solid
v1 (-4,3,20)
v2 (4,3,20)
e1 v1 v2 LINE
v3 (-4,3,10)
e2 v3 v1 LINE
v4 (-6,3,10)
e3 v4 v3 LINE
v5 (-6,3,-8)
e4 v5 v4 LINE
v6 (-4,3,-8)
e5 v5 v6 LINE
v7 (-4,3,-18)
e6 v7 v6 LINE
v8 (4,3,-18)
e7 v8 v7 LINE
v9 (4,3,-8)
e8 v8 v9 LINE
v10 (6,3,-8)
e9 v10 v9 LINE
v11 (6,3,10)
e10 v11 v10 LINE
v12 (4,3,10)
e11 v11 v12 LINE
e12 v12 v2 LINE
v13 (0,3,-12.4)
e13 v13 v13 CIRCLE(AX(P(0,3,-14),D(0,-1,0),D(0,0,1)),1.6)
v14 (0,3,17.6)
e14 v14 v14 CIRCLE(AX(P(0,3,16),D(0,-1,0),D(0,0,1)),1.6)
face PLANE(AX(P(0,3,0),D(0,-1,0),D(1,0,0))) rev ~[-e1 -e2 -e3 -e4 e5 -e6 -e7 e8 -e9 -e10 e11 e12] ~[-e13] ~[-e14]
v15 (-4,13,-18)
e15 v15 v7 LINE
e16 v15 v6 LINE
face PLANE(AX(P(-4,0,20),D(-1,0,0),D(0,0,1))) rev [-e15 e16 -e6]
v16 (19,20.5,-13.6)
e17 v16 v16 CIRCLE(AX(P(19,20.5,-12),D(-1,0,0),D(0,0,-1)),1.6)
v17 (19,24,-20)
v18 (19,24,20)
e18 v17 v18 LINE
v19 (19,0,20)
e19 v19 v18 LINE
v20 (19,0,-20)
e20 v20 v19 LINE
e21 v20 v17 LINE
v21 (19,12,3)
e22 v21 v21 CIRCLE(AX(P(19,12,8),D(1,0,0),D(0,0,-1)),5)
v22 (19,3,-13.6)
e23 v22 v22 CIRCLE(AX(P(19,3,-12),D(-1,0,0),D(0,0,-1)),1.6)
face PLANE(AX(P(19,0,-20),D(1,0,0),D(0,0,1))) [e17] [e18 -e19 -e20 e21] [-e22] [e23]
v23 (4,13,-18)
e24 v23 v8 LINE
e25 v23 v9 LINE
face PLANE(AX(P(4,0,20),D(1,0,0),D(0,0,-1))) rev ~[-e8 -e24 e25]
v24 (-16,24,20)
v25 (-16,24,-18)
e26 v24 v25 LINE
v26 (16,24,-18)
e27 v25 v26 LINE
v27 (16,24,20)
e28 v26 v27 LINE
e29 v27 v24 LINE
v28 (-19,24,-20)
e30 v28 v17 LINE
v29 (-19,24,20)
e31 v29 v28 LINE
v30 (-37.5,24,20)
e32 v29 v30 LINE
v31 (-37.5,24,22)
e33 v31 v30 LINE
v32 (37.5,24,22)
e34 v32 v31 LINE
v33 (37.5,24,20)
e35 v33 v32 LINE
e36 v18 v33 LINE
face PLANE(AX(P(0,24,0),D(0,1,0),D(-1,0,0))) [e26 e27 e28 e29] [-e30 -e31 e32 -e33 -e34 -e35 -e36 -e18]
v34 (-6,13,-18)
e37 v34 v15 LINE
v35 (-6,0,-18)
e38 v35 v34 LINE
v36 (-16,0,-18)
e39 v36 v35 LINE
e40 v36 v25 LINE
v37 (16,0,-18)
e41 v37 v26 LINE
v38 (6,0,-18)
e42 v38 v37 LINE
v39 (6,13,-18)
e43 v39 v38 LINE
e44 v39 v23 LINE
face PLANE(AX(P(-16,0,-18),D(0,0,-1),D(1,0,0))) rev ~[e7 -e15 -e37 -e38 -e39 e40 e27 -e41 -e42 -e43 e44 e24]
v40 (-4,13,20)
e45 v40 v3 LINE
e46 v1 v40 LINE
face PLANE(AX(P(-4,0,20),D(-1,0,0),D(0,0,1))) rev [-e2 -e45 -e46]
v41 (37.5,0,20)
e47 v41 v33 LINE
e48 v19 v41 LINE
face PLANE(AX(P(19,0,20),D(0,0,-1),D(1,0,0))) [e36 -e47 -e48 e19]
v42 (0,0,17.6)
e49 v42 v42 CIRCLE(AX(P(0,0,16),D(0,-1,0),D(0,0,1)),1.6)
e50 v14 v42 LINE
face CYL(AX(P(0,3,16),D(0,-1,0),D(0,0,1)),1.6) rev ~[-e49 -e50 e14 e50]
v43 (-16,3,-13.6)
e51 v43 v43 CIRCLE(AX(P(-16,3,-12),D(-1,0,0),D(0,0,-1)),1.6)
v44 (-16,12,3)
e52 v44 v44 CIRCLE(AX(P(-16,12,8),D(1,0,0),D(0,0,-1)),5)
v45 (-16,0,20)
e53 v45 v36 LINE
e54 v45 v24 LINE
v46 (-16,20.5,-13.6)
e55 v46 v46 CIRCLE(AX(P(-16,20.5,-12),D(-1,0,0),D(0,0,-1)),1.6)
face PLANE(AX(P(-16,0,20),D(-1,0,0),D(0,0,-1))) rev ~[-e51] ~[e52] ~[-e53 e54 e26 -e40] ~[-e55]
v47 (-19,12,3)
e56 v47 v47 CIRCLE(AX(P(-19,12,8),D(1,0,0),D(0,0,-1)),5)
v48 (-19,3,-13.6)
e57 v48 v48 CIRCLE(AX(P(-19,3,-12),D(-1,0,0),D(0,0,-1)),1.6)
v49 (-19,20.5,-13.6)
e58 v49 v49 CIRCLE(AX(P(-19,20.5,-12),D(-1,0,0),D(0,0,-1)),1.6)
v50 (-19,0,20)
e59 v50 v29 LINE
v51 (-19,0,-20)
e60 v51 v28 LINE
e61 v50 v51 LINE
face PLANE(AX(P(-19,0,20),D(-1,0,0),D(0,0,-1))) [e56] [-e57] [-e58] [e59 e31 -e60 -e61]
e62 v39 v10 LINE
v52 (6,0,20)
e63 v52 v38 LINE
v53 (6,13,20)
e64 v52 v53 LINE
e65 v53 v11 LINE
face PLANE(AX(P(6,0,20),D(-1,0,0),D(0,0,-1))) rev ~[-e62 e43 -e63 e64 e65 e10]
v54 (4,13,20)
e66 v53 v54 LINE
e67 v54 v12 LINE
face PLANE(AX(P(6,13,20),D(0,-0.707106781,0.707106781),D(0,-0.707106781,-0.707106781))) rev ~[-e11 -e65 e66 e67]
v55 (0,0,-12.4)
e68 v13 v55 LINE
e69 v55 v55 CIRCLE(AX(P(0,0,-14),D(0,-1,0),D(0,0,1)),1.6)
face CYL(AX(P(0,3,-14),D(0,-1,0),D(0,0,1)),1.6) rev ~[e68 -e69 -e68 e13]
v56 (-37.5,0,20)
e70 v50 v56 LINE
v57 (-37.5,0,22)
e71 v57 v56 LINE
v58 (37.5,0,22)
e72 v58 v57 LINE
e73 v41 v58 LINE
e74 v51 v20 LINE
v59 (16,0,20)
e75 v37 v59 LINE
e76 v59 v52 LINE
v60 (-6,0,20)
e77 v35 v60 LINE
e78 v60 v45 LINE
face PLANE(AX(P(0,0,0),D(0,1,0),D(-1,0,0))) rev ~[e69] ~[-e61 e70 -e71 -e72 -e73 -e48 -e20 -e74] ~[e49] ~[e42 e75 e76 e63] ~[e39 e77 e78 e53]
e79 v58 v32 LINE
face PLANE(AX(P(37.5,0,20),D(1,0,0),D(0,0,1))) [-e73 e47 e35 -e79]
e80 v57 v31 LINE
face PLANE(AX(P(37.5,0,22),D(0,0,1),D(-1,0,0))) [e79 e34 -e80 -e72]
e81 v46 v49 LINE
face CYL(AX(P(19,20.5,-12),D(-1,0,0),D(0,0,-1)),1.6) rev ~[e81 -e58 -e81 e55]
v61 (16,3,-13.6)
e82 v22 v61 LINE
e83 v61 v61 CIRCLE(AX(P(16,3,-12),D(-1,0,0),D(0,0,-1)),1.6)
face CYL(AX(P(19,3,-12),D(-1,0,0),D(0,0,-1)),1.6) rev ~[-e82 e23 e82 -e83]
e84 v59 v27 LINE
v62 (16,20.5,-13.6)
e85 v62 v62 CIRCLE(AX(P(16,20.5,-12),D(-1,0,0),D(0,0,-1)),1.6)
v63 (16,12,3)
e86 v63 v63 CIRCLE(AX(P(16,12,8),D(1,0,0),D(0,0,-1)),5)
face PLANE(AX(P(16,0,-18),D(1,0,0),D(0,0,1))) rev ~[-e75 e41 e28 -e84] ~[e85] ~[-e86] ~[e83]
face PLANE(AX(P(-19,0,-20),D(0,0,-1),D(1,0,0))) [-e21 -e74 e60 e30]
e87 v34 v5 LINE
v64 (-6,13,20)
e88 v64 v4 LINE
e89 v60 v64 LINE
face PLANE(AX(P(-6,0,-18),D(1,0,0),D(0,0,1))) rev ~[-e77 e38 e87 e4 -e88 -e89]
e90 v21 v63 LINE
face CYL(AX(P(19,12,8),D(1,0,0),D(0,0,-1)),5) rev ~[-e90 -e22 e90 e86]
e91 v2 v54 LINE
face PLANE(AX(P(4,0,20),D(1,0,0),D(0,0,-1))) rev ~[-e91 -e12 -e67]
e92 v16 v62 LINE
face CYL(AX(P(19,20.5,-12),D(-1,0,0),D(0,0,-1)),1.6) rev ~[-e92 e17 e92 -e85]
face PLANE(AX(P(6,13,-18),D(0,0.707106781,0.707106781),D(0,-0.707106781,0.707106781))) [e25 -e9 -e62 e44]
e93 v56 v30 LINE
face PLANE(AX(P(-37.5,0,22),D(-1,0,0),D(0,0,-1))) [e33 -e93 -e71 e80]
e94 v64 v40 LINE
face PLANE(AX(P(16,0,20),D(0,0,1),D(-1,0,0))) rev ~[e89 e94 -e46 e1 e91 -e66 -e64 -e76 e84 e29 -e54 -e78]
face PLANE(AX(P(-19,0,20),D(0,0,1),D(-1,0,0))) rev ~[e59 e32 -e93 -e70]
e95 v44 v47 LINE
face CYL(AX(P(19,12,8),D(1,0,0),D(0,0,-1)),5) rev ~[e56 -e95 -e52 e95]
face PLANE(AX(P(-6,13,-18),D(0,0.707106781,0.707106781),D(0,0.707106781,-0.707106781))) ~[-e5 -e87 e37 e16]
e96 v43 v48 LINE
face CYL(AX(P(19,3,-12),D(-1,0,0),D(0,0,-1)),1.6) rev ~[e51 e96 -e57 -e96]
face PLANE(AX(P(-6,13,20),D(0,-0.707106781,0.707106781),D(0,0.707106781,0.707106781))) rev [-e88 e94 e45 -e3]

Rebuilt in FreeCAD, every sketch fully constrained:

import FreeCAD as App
import Part
import Sketcher
from FreeCAD import Vector

doc = App.newDocument("Part")
body = doc.addObject("PartDesign::Body", "Body")

sketch1 = body.newObject("Sketcher::SketchObject", "Sketch")
sketch1.AttachmentSupport = (doc.getObject("XZ_Plane"), [""])
sketch1.MapMode = "FlatFace"
sketch1.addGeometry(Part.LineSegment(Vector(19, -20, 0), Vector(-19, -20, 0)), False)
sketch1.addGeometry(Part.LineSegment(Vector(-19, -20, 0), Vector(-19, 20, 0)), False)
sketch1.addGeometry(Part.LineSegment(Vector(-19, 20, 0), Vector(-37.5, 20, 0)), False)
sketch1.addGeometry(Part.LineSegment(Vector(-37.5, 20, 0), Vector(-37.5, 22, 0)), False)
sketch1.addGeometry(Part.LineSegment(Vector(-37.5, 22, 0), Vector(37.5, 22, 0)), False)
sketch1.addGeometry(Part.LineSegment(Vector(37.5, 22, 0), Vector(37.5, 20, 0)), False)
sketch1.addGeometry(Part.LineSegment(Vector(37.5, 20, 0), Vector(19, 20, 0)), False)
sketch1.addGeometry(Part.LineSegment(Vector(19, 20, 0), Vector(19, -20, 0)), False)
sketch1.addGeometry(Part.LineSegment(Vector(-16, 20, 0), Vector(-16, -18, 0)), False)
sketch1.addGeometry(Part.LineSegment(Vector(-16, -18, 0), Vector(16, -18, 0)), False)
sketch1.addGeometry(Part.LineSegment(Vector(16, -18, 0), Vector(16, 20, 0)), False)
sketch1.addGeometry(Part.LineSegment(Vector(16, 20, 0), Vector(-16, 20, 0)), False)
sketch1.addConstraint(Sketcher.Constraint("Coincident", 0, 2, 1, 1))
sketch1.addConstraint(Sketcher.Constraint("Coincident", 1, 2, 2, 1))
sketch1.addConstraint(Sketcher.Constraint("Coincident", 2, 2, 3, 1))
sketch1.addConstraint(Sketcher.Constraint("Coincident", 3, 2, 4, 1))
sketch1.addConstraint(Sketcher.Constraint("Coincident", 4, 2, 5, 1))
sketch1.addConstraint(Sketcher.Constraint("Coincident", 5, 2, 6, 1))
sketch1.addConstraint(Sketcher.Constraint("Coincident", 6, 2, 7, 1))
sketch1.addConstraint(Sketcher.Constraint("Coincident", 7, 2, 0, 1))
sketch1.addConstraint(Sketcher.Constraint("Coincident", 8, 2, 9, 1))
sketch1.addConstraint(Sketcher.Constraint("Coincident", 9, 2, 10, 1))
sketch1.addConstraint(Sketcher.Constraint("Coincident", 10, 2, 11, 1))
sketch1.addConstraint(Sketcher.Constraint("Coincident", 11, 2, 8, 1))
sketch1.addConstraint(Sketcher.Constraint("Horizontal", 0))
sketch1.addConstraint(Sketcher.Constraint("Vertical", 1))
sketch1.addConstraint(Sketcher.Constraint("Horizontal", 2))
sketch1.addConstraint(Sketcher.Constraint("Vertical", 3))
sketch1.addConstraint(Sketcher.Constraint("Horizontal", 4))
sketch1.addConstraint(Sketcher.Constraint("Vertical", 5))
sketch1.addConstraint(Sketcher.Constraint("Horizontal", 6))
sketch1.addConstraint(Sketcher.Constraint("Vertical", 7))
sketch1.addConstraint(Sketcher.Constraint("Vertical", 8))
sketch1.addConstraint(Sketcher.Constraint("Horizontal", 9))
sketch1.addConstraint(Sketcher.Constraint("Vertical", 10))
sketch1.addConstraint(Sketcher.Constraint("Horizontal", 11))
sketch1.addConstraint(Sketcher.Constraint("Symmetric", 0, 2, 6, 2, -1, 1))
sketch1.addConstraint(Sketcher.Constraint("Symmetric", 2, 2, 5, 2, -2))
sketch1.addConstraint(Sketcher.Constraint("Horizontal", 6, 2, 10, 2))
sketch1.addConstraint(Sketcher.Constraint("Equal", 0, 8))
sketch1.addConstraint(Sketcher.Constraint("DistanceX", 0, 2, 0, 1, 38.0))
sketch1.addConstraint(Sketcher.Constraint("DistanceX", 4, 1, 4, 2, 75.0))
sketch1.addConstraint(Sketcher.Constraint("DistanceY", 1, 1, 1, 2, 40.0))
sketch1.addConstraint(Sketcher.Constraint("DistanceY", 3, 1, 3, 2, 2.0))
sketch1.addConstraint(Sketcher.Constraint("DistanceX", 0, 2, 8, 2, 3.0))
sketch1.addConstraint(Sketcher.Constraint("DistanceX", 9, 2, 7, 2, 3.0))
pad1 = body.newObject("PartDesign::Pad", "Pad")
pad1.Profile = sketch1
pad1.Length = 24
pad1.Reversed = True

sketch2 = body.newObject("Sketcher::SketchObject", "Sketch001")
sketch2.AttachmentSupport = (doc.getObject("YZ_Plane"), [""])
sketch2.MapMode = "FlatFace"
sketch2.AttachmentOffset = App.Placement(Vector(0, 0, 19), App.Rotation())
sketch2.addGeometry(Part.Circle(Vector(20.5, -12, 0), Vector(0, 0, 1), 1.6), False)
sketch2.addGeometry(Part.Circle(Vector(3, -12, 0), Vector(0, 0, 1), 1.6), False)
sketch2.addConstraint(Sketcher.Constraint("Equal", 0, 1))
sketch2.addConstraint(Sketcher.Constraint("Horizontal", 0, 3, 1, 3))
sketch2.addConstraint(Sketcher.Constraint("Diameter", 0, 3.2))
sketch2.addConstraint(Sketcher.Constraint("DistanceY", 0, 3, -1, 1, 12.0))
sketch2.addConstraint(Sketcher.Constraint("DistanceX", -1, 1, 1, 3, 3.0))
sketch2.addConstraint(Sketcher.Constraint("DistanceX", -1, 1, 0, 3, 20.5))
doc.recompute()
hole = body.newObject("PartDesign::Hole", "Hole")
hole.Profile = sketch2
hole.ThreadType = "None"
hole.Diameter = 3.2
hole.DepthType = "ThroughAll"

sketch3 = body.newObject("Sketcher::SketchObject", "Sketch002")
sketch3.AttachmentSupport = (doc.getObject("YZ_Plane"), [""])
sketch3.MapMode = "FlatFace"
sketch3.AttachmentOffset = App.Placement(Vector(0, 0, 19), App.Rotation())
sketch3.addGeometry(Part.Circle(Vector(12, 8, 0), Vector(0, 0, 1), 5), False)
sketch3.addConstraint(Sketcher.Constraint("Diameter", 0, 10.0))
sketch3.addConstraint(Sketcher.Constraint("DistanceX", -1, 1, 0, 3, 12.0))
sketch3.addConstraint(Sketcher.Constraint("DistanceY", -1, 1, 0, 3, 8.0))
pocket1 = body.newObject("PartDesign::Pocket", "Pocket")
pocket1.Profile = sketch3
pocket1.Type = "ThroughAll"

sketch4 = body.newObject("Sketcher::SketchObject", "Sketch003")
sketch4.AttachmentSupport = (doc.getObject("XZ_Plane"), [""])
sketch4.MapMode = "FlatFace"
sketch4.addGeometry(Part.LineSegment(Vector(-6, -18, 0), Vector(6, -18, 0)), False)
sketch4.addGeometry(Part.LineSegment(Vector(6, -18, 0), Vector(6, 20, 0)), False)
sketch4.addGeometry(Part.LineSegment(Vector(6, 20, 0), Vector(-6, 20, 0)), False)
sketch4.addGeometry(Part.LineSegment(Vector(-6, 20, 0), Vector(-6, -18, 0)), False)
sketch4.addConstraint(Sketcher.Constraint("Coincident", 0, 2, 1, 1))
sketch4.addConstraint(Sketcher.Constraint("Coincident", 1, 2, 2, 1))
sketch4.addConstraint(Sketcher.Constraint("Coincident", 2, 2, 3, 1))
sketch4.addConstraint(Sketcher.Constraint("Coincident", 3, 2, 0, 1))
sketch4.addConstraint(Sketcher.Constraint("Horizontal", 0))
sketch4.addConstraint(Sketcher.Constraint("Vertical", 1))
sketch4.addConstraint(Sketcher.Constraint("Horizontal", 2))
sketch4.addConstraint(Sketcher.Constraint("Vertical", 3))
sketch4.addConstraint(Sketcher.Constraint("DistanceX", 0, 1, 0, 2, 12.0))
sketch4.addConstraint(Sketcher.Constraint("DistanceY", 1, 1, 1, 2, 38.0))
sketch4.addConstraint(Sketcher.Constraint("DistanceX", -1, 1, 0, 2, 6.0))
sketch4.addConstraint(Sketcher.Constraint("DistanceY", 0, 2, -1, 1, 18.0))
pad2 = body.newObject("PartDesign::Pad", "Pad001")
pad2.Profile = sketch4
pad2.Length = 3
pad2.Reversed = True

sketch5 = body.newObject("Sketcher::SketchObject", "Sketch004")
sketch5.AttachmentSupport = (doc.getObject("YZ_Plane"), [""])
sketch5.MapMode = "FlatFace"
sketch5.AttachmentOffset = App.Placement(Vector(0, 0, 6), App.Rotation())
sketch5.addGeometry(Part.LineSegment(Vector(13, -18, 0), Vector(3, -8, 0)), False)
sketch5.addGeometry(Part.LineSegment(Vector(3, -8, 0), Vector(3, -18, 0)), False)
sketch5.addGeometry(Part.LineSegment(Vector(3, -18, 0), Vector(13, -18, 0)), False)
sketch5.addGeometry(Part.LineSegment(Vector(13, 20, 0), Vector(3, 20, 0)), False)
sketch5.addGeometry(Part.LineSegment(Vector(3, 20, 0), Vector(3, 10, 0)), False)
sketch5.addGeometry(Part.LineSegment(Vector(3, 10, 0), Vector(13, 20, 0)), False)
sketch5.addConstraint(Sketcher.Constraint("Coincident", 0, 2, 1, 1))
sketch5.addConstraint(Sketcher.Constraint("Coincident", 1, 2, 2, 1))
sketch5.addConstraint(Sketcher.Constraint("Coincident", 2, 2, 0, 1))
sketch5.addConstraint(Sketcher.Constraint("Coincident", 3, 2, 4, 1))
sketch5.addConstraint(Sketcher.Constraint("Coincident", 4, 2, 5, 1))
sketch5.addConstraint(Sketcher.Constraint("Coincident", 5, 2, 3, 1))
sketch5.addConstraint(Sketcher.Constraint("Vertical", 1))
sketch5.addConstraint(Sketcher.Constraint("Horizontal", 2))
sketch5.addConstraint(Sketcher.Constraint("Horizontal", 3))
sketch5.addConstraint(Sketcher.Constraint("Vertical", 4))
sketch5.addConstraint(Sketcher.Constraint("Perpendicular", 0, 5))
sketch5.addConstraint(Sketcher.Constraint("Vertical", 1, 2, 3, 2))
sketch5.addConstraint(Sketcher.Constraint("Vertical", 2, 2, 5, 2))
sketch5.addConstraint(Sketcher.Constraint("Equal", 3, 1))
sketch5.addConstraint(Sketcher.Constraint("DistanceX", 2, 1, 2, 2, 10.0))
sketch5.addConstraint(Sketcher.Constraint("DistanceY", -1, 1, 4, 2, 10.0))
sketch5.addConstraint(Sketcher.Constraint("DistanceX", -1, 1, 0, 2, 3.0))
sketch5.addConstraint(Sketcher.Constraint("DistanceY", 0, 2, -1, 1, 8.0))
pad3 = body.newObject("PartDesign::Pad", "Pad002")
pad3.Profile = sketch5
pad3.Length = 2
pad3.Reversed = True
doc.recompute()

mirrored = body.newObject("PartDesign::Mirrored", "Mirrored")
mirrored.Originals = [pad3]
mirrored.MirrorPlane = (doc.getObject("YZ_Plane"), [""])
body.Tip = mirrored

sketch6 = body.newObject("Sketcher::SketchObject", "Sketch005")
sketch6.AttachmentSupport = (doc.getObject("XZ_Plane"), [""])
sketch6.MapMode = "FlatFace"
sketch6.AttachmentOffset = App.Placement(Vector(0, 0, -3), App.Rotation())
sketch6.addGeometry(Part.Circle(Vector(0, 16, 0), Vector(0, 0, 1), 1.6), False)
sketch6.addGeometry(Part.Circle(Vector(0, -14, 0), Vector(0, 0, 1), 1.6), False)
sketch6.addConstraint(Sketcher.Constraint("Equal", 0, 1))
sketch6.addConstraint(Sketcher.Constraint("PointOnObject", 0, 3, -2))
sketch6.addConstraint(Sketcher.Constraint("PointOnObject", 1, 3, -2))
sketch6.addConstraint(Sketcher.Constraint("Diameter", 0, 3.2))
sketch6.addConstraint(Sketcher.Constraint("DistanceY", -1, 1, 0, 3, 16.0))
sketch6.addConstraint(Sketcher.Constraint("DistanceY", 1, 3, -1, 1, 14.0))
doc.recompute()
hole2 = body.newObject("PartDesign::Hole", "Hole001")
hole2.Profile = sketch6
hole2.ThreadType = "None"
hole2.Diameter = 3.2
hole2.DepthType = "ThroughAll"
hole2.Reversed = True

doc.recompute()
